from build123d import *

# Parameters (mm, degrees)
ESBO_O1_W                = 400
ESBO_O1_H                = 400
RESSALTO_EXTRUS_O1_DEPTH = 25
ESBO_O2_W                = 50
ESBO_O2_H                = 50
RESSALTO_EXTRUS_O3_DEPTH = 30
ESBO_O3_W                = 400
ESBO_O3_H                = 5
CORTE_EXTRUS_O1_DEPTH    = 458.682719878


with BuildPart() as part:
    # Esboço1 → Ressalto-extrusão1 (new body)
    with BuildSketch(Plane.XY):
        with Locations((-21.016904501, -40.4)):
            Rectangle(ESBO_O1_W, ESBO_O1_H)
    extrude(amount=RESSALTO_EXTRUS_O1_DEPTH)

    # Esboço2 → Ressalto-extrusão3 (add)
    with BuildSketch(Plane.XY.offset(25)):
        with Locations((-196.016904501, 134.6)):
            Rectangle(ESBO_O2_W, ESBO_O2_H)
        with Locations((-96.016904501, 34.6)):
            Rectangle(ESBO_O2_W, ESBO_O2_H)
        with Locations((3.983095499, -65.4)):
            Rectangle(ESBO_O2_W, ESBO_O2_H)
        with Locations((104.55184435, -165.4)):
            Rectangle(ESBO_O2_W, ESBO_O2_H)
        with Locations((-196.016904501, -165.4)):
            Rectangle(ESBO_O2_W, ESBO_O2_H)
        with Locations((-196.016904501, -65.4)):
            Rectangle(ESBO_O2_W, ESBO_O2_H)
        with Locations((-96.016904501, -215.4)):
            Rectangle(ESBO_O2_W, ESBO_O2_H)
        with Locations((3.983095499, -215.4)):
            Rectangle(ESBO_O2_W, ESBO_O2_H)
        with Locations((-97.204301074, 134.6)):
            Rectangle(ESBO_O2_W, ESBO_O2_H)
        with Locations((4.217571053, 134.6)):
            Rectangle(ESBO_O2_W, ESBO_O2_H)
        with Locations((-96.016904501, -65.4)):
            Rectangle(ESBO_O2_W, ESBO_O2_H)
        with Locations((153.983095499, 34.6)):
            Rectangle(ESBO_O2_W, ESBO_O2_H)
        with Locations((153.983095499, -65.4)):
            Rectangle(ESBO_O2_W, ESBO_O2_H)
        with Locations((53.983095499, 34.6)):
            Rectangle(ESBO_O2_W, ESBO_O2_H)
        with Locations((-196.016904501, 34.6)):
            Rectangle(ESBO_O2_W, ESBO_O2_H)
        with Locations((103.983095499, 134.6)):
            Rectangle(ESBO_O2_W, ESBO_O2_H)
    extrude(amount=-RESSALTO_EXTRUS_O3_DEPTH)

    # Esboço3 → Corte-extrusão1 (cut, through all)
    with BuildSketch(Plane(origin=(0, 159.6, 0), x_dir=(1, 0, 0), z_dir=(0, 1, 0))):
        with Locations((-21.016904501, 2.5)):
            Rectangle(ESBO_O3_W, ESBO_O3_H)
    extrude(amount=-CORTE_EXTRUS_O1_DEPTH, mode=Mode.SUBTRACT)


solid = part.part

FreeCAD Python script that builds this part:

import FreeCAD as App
import Part
import Sketcher

V = App.Vector
Q = App.Units.Quantity


def add_polygon(sketch, points):
    """Adds a closed chain of lines whose ends are joined by coincident constraints."""
    first, n = sketch.GeometryCount, len(points)
    for a, b in zip(points, points[1:] + points[:1]):
        sketch.addGeometry(Part.LineSegment(App.Vector(*a, 0), App.Vector(*b, 0)), False)
    for i in range(n):
        sketch.addConstraint(Sketcher.Constraint("Coincident", first + i, 2, first + (i + 1) % n, 1))

doc = App.newDocument("Part")
params = doc.addObject("Spreadsheet::Sheet", "Params")
for row, (alias, value) in enumerate([
    ("sketch1_width", "400 mm"),
    ("pad1_length", "25 mm"),
    ("sketch2_width", "50 mm"),
    ("pad2_length", "30 mm"),
    ("sketch3_width", "400 mm"),
    ("sketch3_height", "5 mm"),
], start=1):
    params.set(f"A{row}", alias)
    params.set(f"B{row}", "=" + value)
    params.setAlias(f"B{row}", alias)

body = doc.addObject("PartDesign::Body", "Body")

# Sketch on XY plane
sketch1 = doc.addObject("Sketcher::SketchObject", "Sketch")
body.addObject(sketch1)
sketch1.AttachmentSupport = (doc.XY_Plane, [""])
sketch1.MapMode = "FlatFace"
add_polygon(sketch1, [(-221, 160), (-221, -240), (179, -240), (179, 160)])  # lines 0-3
sketch1.addConstraint(Sketcher.Constraint("Vertical", 0))
sketch1.addConstraint(Sketcher.Constraint("Horizontal", 1))
sketch1.addConstraint(Sketcher.Constraint("Vertical", 2))
sketch1.addConstraint(Sketcher.Constraint("Horizontal", 3))
sketch1.addConstraint(Sketcher.Constraint("Equal", 3, 0))
sketch1.addConstraint(Sketcher.Constraint("DistanceX", 1, 1, 1, 2, Q("400 mm")))
sketch1.addConstraint(Sketcher.Constraint("DistanceY", 0, 2, -1, 1, Q("240.4 mm")))
sketch1.addConstraint(Sketcher.Constraint("DistanceX", 0, 2, -1, 1, Q("221.016905 mm")))
sketch1.setExpression("Constraints[9]", "Params.sketch1_width")
pad1 = doc.addObject("PartDesign::Pad", "Pad")
body.addObject(pad1)
pad1.Profile = sketch1
pad1.setExpression("Length", "Params.pad1_length")

# Sketch on XY plane
sketch2 = doc.addObject("Sketcher::SketchObject", "Sketch001")
body.addObject(sketch2)
sketch2.AttachmentSupport = (doc.XY_Plane, [""])
sketch2.MapMode = "FlatFace"
sketch2.AttachmentOffset = App.Placement(V(0, 0, 25), App.Rotation())
add_polygon(sketch2, [(-221, 160), (-221, 110), (-171, 110), (-171, 160)])  # lines 0-3
add_polygon(sketch2, [(-121, 60), (-121, 10), (-71, 10), (-71, 60)])  # lines 4-7
add_polygon(sketch2, [(-21, -40), (-21, -90), (29, -90), (29, -40)])  # lines 8-11
add_polygon(sketch2, [(80, -140), (80, -190), (130, -190), (130, -140)])  # lines 12-15
add_polygon(sketch2, [(-221, -140), (-221, -190), (-171, -190), (-171, -140)])  # lines 16-19
add_polygon(sketch2, [(-221, -40), (-221, -90), (-171, -90), (-171, -40)])  # lines 20-23
add_polygon(sketch2, [(-121, -190), (-121, -240), (-71, -240), (-71, -190)])  # lines 24-27
add_polygon(sketch2, [(-21, -190), (-21, -240), (29, -240), (29, -190)])  # lines 28-31
add_polygon(sketch2, [(-122, 160), (-122, 110), (-72, 110), (-72, 160)])  # lines 32-35
add_polygon(sketch2, [(-21, 160), (-21, 110), (29, 110), (29, 160)])  # lines 36-39
add_polygon(sketch2, [(-121, -40), (-121, -90), (-71, -90), (-71, -40)])  # lines 40-43
add_polygon(sketch2, [(129, 60), (129, 10), (179, 10), (179, 60)])  # lines 44-47
add_polygon(sketch2, [(129, -40), (129, -90), (179, -90), (179, -40)])  # lines 48-51
add_polygon(sketch2, [(29, 60), (29, 10), (79, 10), (79, 60)])  # lines 52-55
add_polygon(sketch2, [(-221, 60), (-221, 10), (-171, 10), (-171, 60)])  # lines 56-59
add_polygon(sketch2, [(79, 160), (79, 110), (129, 110), (129, 160)])  # lines 60-63
sketch2.addConstraint(Sketcher.Constraint("Vertical", 0))
sketch2.addConstraint(Sketcher.Constraint("Horizontal", 1))
sketch2.addConstraint(Sketcher.Constraint("Vertical", 2))
sketch2.addConstraint(Sketcher.Constraint("Horizontal", 3))
sketch2.addConstraint(Sketcher.Constraint("Vertical", 4))
sketch2.addConstraint(Sketcher.Constraint("Horizontal", 5))
sketch2.addConstraint(Sketcher.Constraint("Vertical", 6))
sketch2.addConstraint(Sketcher.Constraint("Horizontal", 7))
sketch2.addConstraint(Sketcher.Constraint("Vertical", 8))
sketch2.addConstraint(Sketcher.Constraint("Horizontal", 9))
sketch2.addConstraint(Sketcher.Constraint("Vertical", 10))
sketch2.addConstraint(Sketcher.Constraint("Horizontal", 11))
sketch2.addConstraint(Sketcher.Constraint("Vertical", 12))
sketch2.addConstraint(Sketcher.Constraint("Horizontal", 13))
sketch2.addConstraint(Sketcher.Constraint("Vertical", 14))
sketch2.addConstraint(Sketcher.Constraint("Horizontal", 15))
sketch2.addConstraint(Sketcher.Constraint("Vertical", 16))
sketch2.addConstraint(Sketcher.Constraint("Horizontal", 17))
sketch2.addConstraint(Sketcher.Constraint("Vertical", 18))
sketch2.addConstraint(Sketcher.Constraint("Horizontal", 19))
sketch2.addConstraint(Sketcher.Constraint("Vertical", 20))
sketch2.addConstraint(Sketcher.Constraint("Horizontal", 21))
sketch2.addConstraint(Sketcher.Constraint("Vertical", 22))
sketch2.addConstraint(Sketcher.Constraint("Horizontal", 23))
sketch2.addConstraint(Sketcher.Constraint("Vertical", 24))
sketch2.addConstraint(Sketcher.Constraint("Horizontal", 25))
sketch2.addConstraint(Sketcher.Constraint("Vertical", 26))
sketch2.addConstraint(Sketcher.Constraint("Horizontal", 27))
sketch2.addConstraint(Sketcher.Constraint("Vertical", 28))
sketch2.addConstraint(Sketcher.Constraint("Horizontal", 29))
sketch2.addConstraint(Sketcher.Constraint("Vertical", 30))
sketch2.addConstraint(Sketcher.Constraint("Horizontal", 31))
sketch2.addConstraint(Sketcher.Constraint("Vertical", 32))
sketch2.addConstraint(Sketcher.Constraint("Horizontal", 33))
sketch2.addConstraint(Sketcher.Constraint("Vertical", 34))
sketch2.addConstraint(Sketcher.Constraint("Horizontal", 35))
sketch2.addConstraint(Sketcher.Constraint("Vertical", 36))
sketch2.addConstraint(Sketcher.Constraint("Horizontal", 37))
sketch2.addConstraint(Sketcher.Constraint("Vertical", 38))
sketch2.addConstraint(Sketcher.Constraint("Horizontal", 39))
sketch2.addConstraint(Sketcher.Constraint("Vertical", 40))
sketch2.addConstraint(Sketcher.Constraint("Horizontal", 41))
sketch2.addConstraint(Sketcher.Constraint("Vertical", 42))
sketch2.addConstraint(Sketcher.Constraint("Horizontal", 43))
sketch2.addConstraint(Sketcher.Constraint("Vertical", 44))
sketch2.addConstraint(Sketcher.Constraint("Horizontal", 45))
sketch2.addConstraint(Sketcher.Constraint("Vertical", 46))
sketch2.addConstraint(Sketcher.Constraint("Horizontal", 47))
sketch2.addConstraint(Sketcher.Constraint("Vertical", 48))
sketch2.addConstraint(Sketcher.Constraint("Horizontal", 49))
sketch2.addConstraint(Sketcher.Constraint("Vertical", 50))
sketch2.addConstraint(Sketcher.Constraint("Horizontal", 51))
sketch2.addConstraint(Sketcher.Constraint("Vertical", 52))
sketch2.addConstraint(Sketcher.Constraint("Horizontal", 53))
sketch2.addConstraint(Sketcher.Constraint("Vertical", 54))
sketch2.addConstraint(Sketcher.Constraint("Horizontal", 55))
sketch2.addConstraint(Sketcher.Constraint("Vertical", 56))
sketch2.addConstraint(Sketcher.Constraint("Horizontal", 57))
sketch2.addConstraint(Sketcher.Constraint("Vertical", 58))
sketch2.addConstraint(Sketcher.Constraint("Horizontal", 59))
sketch2.addConstraint(Sketcher.Constraint("Vertical", 60))
sketch2.addConstraint(Sketcher.Constraint("Horizontal", 61))
sketch2.addConstraint(Sketcher.Constraint("Vertical", 62))
sketch2.addConstraint(Sketcher.Constraint("Horizontal", 63))
sketch2.addConstraint(Sketcher.Constraint("Horizontal", 13, 2, 16, 2))
sketch2.addConstraint(Sketcher.Constraint("Horizontal", 15, 2, 18, 2))
sketch2.addConstraint(Sketcher.Constraint("Horizontal", 9, 2, 20, 2))
sketch2.addConstraint(Sketcher.Constraint("Horizontal", 11, 2, 22, 2))
sketch2.addConstraint(Sketcher.Constraint("Horizontal", 17, 2, 26, 2))
sketch2.addConstraint(Sketcher.Constraint("Horizontal", 25, 2, 28, 2))
sketch2.addConstraint(Sketcher.Constraint("Horizontal", 27, 2, 30, 2))
sketch2.addConstraint(Sketcher.Constraint("Horizontal", 1, 2, 32, 2))
sketch2.addConstraint(Sketcher.Constraint("Horizontal", 3, 2, 34, 2))
sketch2.addConstraint(Sketcher.Constraint("Horizontal", 33, 2, 36, 2))
sketch2.addConstraint(Sketcher.Constraint("Horizontal", 35, 2, 38, 2))
sketch2.addConstraint(Sketcher.Constraint("Horizontal", 21, 2, 40, 2))
sketch2.addConstraint(Sketcher.Constraint("Horizontal", 23, 2, 42, 2))
sketch2.addConstraint(Sketcher.Constraint("Horizontal", 5, 2, 44, 2))
sketch2.addConstraint(Sketcher.Constraint("Horizontal", 7, 2, 46, 2))
sketch2.addConstraint(Sketcher.Constraint("Horizontal", 41, 2, 48, 2))
sketch2.addConstraint(Sketcher.Constraint("Horizontal", 43, 2, 50, 2))
sketch2.addConstraint(Sketcher.Constraint("Horizontal", 45, 2, 52, 2))
sketch2.addConstraint(Sketcher.Constraint("Horizontal", 47, 2, 54, 2))
sketch2.addConstraint(Sketcher.Constraint("Horizontal", 53, 2, 56, 2))
sketch2.addConstraint(Sketcher.Constraint("Horizontal", 55, 2, 58, 2))
sketch2.addConstraint(Sketcher.Constraint("Horizontal", 37, 2, 60, 2))
sketch2.addConstraint(Sketcher.Constraint("Horizontal", 39, 2, 62, 2))
sketch2.addConstraint(Sketcher.Constraint("Vertical", 3, 2, 16, 2))
sketch2.addConstraint(Sketcher.Constraint("Vertical", 2, 2, 17, 2))
sketch2.addConstraint(Sketcher.Constraint("Vertical", 19, 2, 20, 2))
sketch2.addConstraint(Sketcher.Constraint("Vertical", 18, 2, 21, 2))
sketch2.addConstraint(Sketcher.Constraint("Vertical", 7, 2, 24, 2))
sketch2.addConstraint(Sketcher.Constraint("Vertical", 6, 2, 25, 2))
sketch2.addConstraint(Sketcher.Constraint("Vertical", 11, 2, 28, 2))
sketch2.addConstraint(Sketcher.Constraint("Vertical", 10, 2, 29, 2))
sketch2.addConstraint(Sketcher.Constraint("Vertical", 27, 2, 40, 2))
sketch2.addConstraint(Sketcher.Constraint("Vertical", 26, 2, 41, 2))
sketch2.addConstraint(Sketcher.Constraint("Vertical", 47, 2, 48, 2))
sketch2.addConstraint(Sketcher.Constraint("Vertical", 46, 2, 49, 2))
sketch2.addConstraint(Sketcher.Constraint("Vertical", 30, 2, 52, 2))
sketch2.addConstraint(Sketcher.Constraint("Vertical", 23, 2, 56, 2))
sketch2.addConstraint(Sketcher.Constraint("Vertical", 22, 2, 57, 2))
sketch2.addConstraint(Sketcher.Constraint("Vertical", 54, 2, 60, 2))
sketch2.addConstraint(Sketcher.Constraint("Vertical", 51, 2, 61, 2))
sketch2.addConstraint(Sketcher.Constraint("Equal", 3, 5))
sketch2.addConstraint(Sketcher.Constraint("Equal", 7, 9))
sketch2.addConstraint(Sketcher.Constraint("Equal", 11, 13))
sketch2.addConstraint(Sketcher.Constraint("Equal", 31, 33))
sketch2.addConstraint(Sketcher.Constraint("Equal", 35, 37))
sketch2.addConstraint(Sketcher.Constraint("Equal", 43, 45))
sketch2.addConstraint(Sketcher.Constraint("Equal", 51, 53))
sketch2.addConstraint(Sketcher.Constraint("Equal", 59, 61))
sketch2.addConstraint(Sketcher.Constraint("Equal", 63, 0))
sketch2.addConstraint(Sketcher.Constraint("Equal", 2, 4))
sketch2.addConstraint(Sketcher.Constraint("Equal", 6, 8))
sketch2.addConstraint(Sketcher.Constraint("Equal", 10, 12))
sketch2.addConstraint(Sketcher.Constraint("Equal", 22, 24))
sketch2.addConstraint(Sketcher.Constraint("DistanceX", 1, 1, 1, 2, Q("50 mm")))
sketch2.addConstraint(Sketcher.Constraint("DistanceY", -1, 1, 0, 2, Q("109.6 mm")))
sketch2.addConstraint(Sketcher.Constraint("DistanceY", -1, 1, 4, 2, Q("9.6 mm")))
sketch2.addConstraint(Sketcher.Constraint("DistanceY", 8, 2, -1, 1, Q("90.4 mm")))
sketch2.addConstraint(Sketcher.Constraint("DistanceY", 12, 2, -1, 1, Q("190.4 mm")))
sketch2.addConstraint(Sketcher.Constraint("DistanceX", 32, 2, -1, 1, Q("122.204301 mm")))
sketch2.addConstraint(Sketcher.Constraint("DistanceX", 36, 2, -1, 1, Q("20.782429 mm")))
sketch2.addConstraint(Sketcher.Constraint("DistanceX", 0, 2, -1, 1, Q("221.016905 mm")))
sketch2.addConstraint(Sketcher.Constraint("DistanceX", 4, 2, -1, 1, Q("121.016905 mm")))
sketch2.addConstraint(Sketcher.Constraint("DistanceX", 8, 2, -1, 1, Q("21.016905 mm")))
sketch2.addConstraint(Sketcher.Constraint("DistanceX", -1, 1, 12, 2, Q("79.551844 mm")))
sketch2.setExpression("Constraints[181]", "Params.sketch2_width")
pad2 = doc.addObject("PartDesign::Pad", "Pad001")
body.addObject(pad2)
pad2.Profile = sketch2
pad2.setExpression("Length", "Params.pad2_length")
pad2.Reversed = True

# Sketch on XZ plane
sketch3 = doc.addObject("Sketcher::SketchObject", "Sketch002")
body.addObject(sketch3)
sketch3.AttachmentSupport = (doc.XZ_Plane, [""])
sketch3.MapMode = "FlatFace"
sketch3.AttachmentOffset = App.Placement(V(0, 0, -159.6), App.Rotation())
add_polygon(sketch3, [(-221, -5), (-221, 0), (179, 0), (179, -5)])  # lines 0-3
sketch3.addConstraint(Sketcher.Constraint("Vertical", 0))
sketch3.addConstraint(Sketcher.Constraint("Horizontal", 1))
sketch3.addConstraint(Sketcher.Constraint("Vertical", 2))
sketch3.addConstraint(Sketcher.Constraint("Horizontal", 3))
sketch3.addConstraint(Sketcher.Constraint("PointOnObject", 0, 2, -1))
sketch3.addConstraint(Sketcher.Constraint("DistanceX", 1, 1, 1, 2, Q("400 mm")))
sketch3.addConstraint(Sketcher.Constraint("DistanceY", 0, 1, 0, 2, Q("5 mm")))
sketch3.addConstraint(Sketcher.Constraint("DistanceX", 0, 2, -1, 1, Q("221.016905 mm")))
sketch3.setExpression("Constraints[9]", "Params.sketch3_width")
sketch3.setExpression("Constraints[10]", "Params.sketch3_height")
pocket1 = doc.addObject("PartDesign::Pocket", "Pocket")
body.addObject(pocket1)
pocket1.Profile = sketch3
pocket1.Type = "ThroughAll"
pocket1.Reversed = True

doc.recompute()
